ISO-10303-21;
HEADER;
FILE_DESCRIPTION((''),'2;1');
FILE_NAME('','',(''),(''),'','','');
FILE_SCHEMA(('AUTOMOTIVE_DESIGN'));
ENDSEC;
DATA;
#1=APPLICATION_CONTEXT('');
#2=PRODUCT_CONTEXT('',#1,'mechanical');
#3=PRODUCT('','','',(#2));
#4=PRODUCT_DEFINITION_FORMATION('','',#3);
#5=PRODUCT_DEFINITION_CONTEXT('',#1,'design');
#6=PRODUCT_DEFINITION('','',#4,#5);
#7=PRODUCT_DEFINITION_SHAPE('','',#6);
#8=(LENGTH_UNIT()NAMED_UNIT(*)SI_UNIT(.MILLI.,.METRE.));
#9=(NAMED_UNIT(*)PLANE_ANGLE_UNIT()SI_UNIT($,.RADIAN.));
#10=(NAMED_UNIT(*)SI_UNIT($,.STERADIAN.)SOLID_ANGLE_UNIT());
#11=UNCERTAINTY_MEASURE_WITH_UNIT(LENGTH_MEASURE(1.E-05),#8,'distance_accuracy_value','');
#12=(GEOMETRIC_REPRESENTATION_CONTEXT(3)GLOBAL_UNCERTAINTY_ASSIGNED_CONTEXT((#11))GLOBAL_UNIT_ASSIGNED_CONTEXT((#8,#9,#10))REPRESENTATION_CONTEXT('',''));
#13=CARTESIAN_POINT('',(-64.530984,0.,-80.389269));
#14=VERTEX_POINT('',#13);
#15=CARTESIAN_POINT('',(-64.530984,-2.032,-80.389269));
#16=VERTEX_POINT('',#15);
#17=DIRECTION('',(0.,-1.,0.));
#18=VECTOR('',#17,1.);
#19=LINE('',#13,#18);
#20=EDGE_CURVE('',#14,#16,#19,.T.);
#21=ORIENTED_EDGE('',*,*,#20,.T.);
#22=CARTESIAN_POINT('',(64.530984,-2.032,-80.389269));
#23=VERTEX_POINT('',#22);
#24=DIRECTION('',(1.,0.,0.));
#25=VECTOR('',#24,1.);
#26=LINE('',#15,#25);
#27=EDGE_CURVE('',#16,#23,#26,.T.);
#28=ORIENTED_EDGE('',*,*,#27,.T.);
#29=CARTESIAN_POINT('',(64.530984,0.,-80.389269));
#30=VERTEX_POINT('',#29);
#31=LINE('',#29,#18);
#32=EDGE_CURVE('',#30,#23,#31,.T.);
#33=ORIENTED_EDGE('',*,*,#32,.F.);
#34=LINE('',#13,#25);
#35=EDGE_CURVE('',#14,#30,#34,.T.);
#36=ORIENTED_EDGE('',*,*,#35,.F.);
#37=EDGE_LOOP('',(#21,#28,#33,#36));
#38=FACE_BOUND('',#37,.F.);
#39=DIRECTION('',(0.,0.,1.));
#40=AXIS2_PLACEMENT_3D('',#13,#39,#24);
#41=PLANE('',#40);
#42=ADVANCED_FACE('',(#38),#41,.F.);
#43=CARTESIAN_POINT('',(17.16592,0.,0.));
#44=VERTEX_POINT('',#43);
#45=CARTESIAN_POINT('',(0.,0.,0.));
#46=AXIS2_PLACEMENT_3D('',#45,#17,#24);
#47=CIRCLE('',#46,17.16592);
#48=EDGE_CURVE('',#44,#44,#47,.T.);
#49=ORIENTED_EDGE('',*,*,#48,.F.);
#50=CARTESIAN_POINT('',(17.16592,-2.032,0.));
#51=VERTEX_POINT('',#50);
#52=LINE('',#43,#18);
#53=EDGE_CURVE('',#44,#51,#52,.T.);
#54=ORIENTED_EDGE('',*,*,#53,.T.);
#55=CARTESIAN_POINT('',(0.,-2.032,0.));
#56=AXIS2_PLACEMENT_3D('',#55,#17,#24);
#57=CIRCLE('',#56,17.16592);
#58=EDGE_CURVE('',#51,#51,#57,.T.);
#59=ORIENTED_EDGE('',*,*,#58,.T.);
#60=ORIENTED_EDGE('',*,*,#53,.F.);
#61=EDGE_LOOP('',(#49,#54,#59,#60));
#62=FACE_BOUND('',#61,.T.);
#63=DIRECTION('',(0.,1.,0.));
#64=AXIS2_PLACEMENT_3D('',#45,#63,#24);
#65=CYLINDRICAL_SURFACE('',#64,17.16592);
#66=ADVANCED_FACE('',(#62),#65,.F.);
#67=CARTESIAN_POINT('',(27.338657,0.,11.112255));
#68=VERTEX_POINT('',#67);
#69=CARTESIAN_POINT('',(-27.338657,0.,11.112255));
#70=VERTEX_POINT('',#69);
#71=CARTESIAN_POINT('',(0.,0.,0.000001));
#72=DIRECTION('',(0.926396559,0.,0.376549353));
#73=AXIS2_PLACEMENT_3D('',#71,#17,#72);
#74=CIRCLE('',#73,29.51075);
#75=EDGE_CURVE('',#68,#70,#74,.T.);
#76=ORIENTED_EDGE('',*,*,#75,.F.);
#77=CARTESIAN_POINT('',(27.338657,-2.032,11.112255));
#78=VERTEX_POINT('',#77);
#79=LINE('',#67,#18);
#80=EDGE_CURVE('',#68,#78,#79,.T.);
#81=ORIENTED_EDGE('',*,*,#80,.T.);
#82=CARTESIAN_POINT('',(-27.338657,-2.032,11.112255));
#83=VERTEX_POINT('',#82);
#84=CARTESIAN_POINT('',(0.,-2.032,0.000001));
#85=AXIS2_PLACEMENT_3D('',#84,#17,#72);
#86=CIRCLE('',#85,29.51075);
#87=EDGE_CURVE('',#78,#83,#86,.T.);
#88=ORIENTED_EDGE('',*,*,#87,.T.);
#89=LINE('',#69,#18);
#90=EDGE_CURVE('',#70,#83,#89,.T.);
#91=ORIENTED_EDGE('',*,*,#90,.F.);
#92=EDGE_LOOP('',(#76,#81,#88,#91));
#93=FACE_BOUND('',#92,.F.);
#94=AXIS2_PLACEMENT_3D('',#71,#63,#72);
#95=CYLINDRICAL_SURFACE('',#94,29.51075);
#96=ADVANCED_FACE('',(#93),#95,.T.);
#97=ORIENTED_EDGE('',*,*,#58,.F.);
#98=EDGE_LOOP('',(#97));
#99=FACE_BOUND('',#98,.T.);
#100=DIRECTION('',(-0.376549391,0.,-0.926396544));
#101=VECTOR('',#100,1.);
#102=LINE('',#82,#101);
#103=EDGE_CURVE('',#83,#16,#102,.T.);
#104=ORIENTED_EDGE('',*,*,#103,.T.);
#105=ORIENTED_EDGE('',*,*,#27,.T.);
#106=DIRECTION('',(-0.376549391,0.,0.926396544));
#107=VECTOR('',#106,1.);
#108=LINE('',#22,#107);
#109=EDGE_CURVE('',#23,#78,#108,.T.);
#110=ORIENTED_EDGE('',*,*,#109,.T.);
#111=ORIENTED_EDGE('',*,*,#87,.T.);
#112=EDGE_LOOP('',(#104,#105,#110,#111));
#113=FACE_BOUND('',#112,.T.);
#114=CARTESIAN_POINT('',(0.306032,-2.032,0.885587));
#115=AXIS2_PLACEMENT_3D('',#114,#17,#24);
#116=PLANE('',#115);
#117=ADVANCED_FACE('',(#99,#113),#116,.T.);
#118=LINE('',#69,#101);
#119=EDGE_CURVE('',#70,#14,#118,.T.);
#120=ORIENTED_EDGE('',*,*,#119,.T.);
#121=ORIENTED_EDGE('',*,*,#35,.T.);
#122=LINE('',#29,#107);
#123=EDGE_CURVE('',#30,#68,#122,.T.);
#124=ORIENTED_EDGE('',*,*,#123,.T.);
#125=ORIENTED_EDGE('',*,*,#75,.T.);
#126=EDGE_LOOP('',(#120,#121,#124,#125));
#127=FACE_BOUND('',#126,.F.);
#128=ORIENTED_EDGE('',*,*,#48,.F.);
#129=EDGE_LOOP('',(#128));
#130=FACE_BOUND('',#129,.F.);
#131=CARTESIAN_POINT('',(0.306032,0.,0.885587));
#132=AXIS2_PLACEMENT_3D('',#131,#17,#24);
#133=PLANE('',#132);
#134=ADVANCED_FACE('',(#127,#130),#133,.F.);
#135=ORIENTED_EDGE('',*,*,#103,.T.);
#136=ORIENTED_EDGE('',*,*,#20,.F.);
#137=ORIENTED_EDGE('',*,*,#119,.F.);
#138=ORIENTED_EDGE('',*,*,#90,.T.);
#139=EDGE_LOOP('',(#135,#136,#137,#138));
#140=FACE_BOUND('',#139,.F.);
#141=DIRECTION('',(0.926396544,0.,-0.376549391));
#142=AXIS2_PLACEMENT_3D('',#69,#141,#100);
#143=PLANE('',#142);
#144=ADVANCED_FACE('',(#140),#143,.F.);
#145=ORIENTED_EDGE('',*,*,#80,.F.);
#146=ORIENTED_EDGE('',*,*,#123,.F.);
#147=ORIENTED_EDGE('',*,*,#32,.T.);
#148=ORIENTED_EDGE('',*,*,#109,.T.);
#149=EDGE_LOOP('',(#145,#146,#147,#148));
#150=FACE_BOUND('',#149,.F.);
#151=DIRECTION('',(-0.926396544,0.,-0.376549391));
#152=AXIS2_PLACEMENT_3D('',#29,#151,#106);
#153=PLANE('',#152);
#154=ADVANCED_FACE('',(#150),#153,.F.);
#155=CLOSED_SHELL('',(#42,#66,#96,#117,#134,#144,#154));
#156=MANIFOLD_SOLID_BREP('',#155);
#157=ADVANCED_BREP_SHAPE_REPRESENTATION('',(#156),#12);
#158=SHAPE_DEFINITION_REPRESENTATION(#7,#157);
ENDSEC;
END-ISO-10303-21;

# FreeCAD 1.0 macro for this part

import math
import FreeCAD as App
import Part
import Sketcher
from FreeCAD import Vector
Q = App.Units.Quantity

doc = App.newDocument("Part")
body = doc.addObject("PartDesign::Body", "Body")

sketch1 = body.newObject("Sketcher::SketchObject", "Sketch")
sketch1.AttachmentSupport = (doc.getObject("XZ_Plane"), [""])
sketch1.MapMode = "FlatFace"
sketch1.addGeometry([
    Part.ArcOfCircle(Part.Circle(Vector(0, 0.000001, 0), Vector(0, 0, 1), 29.51075), math.radians(22.120105), math.radians(157.879895)),
    Part.LineSegment(Vector(-27.338657, 11.112255, 0), Vector(-64.530984, -80.389269, 0)),
    Part.LineSegment(Vector(-64.530984, -80.389269, 0), Vector(64.530984, -80.389269, 0)),
    Part.LineSegment(Vector(64.530984, -80.389269, 0), Vector(27.338657, 11.112255, 0)),
    Part.Circle(Vector(0, 0, 0), Vector(0, 0, 1), 17.16592),
], False)
sketch1.addConstraint([
    Sketcher.Constraint("Tangent", 0, 2, 1, 1),
    Sketcher.Constraint("Coincident", 1, 2, 2, 1),
    Sketcher.Constraint("Coincident", 2, 2, 3, 1),
    Sketcher.Constraint("Tangent", 3, 2, 0, 1),
    Sketcher.Constraint("Horizontal", 2),
    Sketcher.Constraint("Coincident", 0, 3, -1, 1),
    Sketcher.Constraint("Coincident", 4, 3, -1, 1),
    Sketcher.Constraint("Horizontal", 0, 2, 3, 2),
    Sketcher.Constraint("Diameter", 4, 34.33184),
    Sketcher.Constraint("Radius", 0, 29.51075),
    Sketcher.Constraint("DistanceX", 2, 1, 2, 2, 129.061968),
    Sketcher.Constraint("DistanceY", 1, 2, -1, 1, 80.389269),
])
pad1 = body.newObject("PartDesign::Pad", "Pad")
pad1.Profile = sketch1
pad1.Length = Q("0.08 in")

doc.recompute()
